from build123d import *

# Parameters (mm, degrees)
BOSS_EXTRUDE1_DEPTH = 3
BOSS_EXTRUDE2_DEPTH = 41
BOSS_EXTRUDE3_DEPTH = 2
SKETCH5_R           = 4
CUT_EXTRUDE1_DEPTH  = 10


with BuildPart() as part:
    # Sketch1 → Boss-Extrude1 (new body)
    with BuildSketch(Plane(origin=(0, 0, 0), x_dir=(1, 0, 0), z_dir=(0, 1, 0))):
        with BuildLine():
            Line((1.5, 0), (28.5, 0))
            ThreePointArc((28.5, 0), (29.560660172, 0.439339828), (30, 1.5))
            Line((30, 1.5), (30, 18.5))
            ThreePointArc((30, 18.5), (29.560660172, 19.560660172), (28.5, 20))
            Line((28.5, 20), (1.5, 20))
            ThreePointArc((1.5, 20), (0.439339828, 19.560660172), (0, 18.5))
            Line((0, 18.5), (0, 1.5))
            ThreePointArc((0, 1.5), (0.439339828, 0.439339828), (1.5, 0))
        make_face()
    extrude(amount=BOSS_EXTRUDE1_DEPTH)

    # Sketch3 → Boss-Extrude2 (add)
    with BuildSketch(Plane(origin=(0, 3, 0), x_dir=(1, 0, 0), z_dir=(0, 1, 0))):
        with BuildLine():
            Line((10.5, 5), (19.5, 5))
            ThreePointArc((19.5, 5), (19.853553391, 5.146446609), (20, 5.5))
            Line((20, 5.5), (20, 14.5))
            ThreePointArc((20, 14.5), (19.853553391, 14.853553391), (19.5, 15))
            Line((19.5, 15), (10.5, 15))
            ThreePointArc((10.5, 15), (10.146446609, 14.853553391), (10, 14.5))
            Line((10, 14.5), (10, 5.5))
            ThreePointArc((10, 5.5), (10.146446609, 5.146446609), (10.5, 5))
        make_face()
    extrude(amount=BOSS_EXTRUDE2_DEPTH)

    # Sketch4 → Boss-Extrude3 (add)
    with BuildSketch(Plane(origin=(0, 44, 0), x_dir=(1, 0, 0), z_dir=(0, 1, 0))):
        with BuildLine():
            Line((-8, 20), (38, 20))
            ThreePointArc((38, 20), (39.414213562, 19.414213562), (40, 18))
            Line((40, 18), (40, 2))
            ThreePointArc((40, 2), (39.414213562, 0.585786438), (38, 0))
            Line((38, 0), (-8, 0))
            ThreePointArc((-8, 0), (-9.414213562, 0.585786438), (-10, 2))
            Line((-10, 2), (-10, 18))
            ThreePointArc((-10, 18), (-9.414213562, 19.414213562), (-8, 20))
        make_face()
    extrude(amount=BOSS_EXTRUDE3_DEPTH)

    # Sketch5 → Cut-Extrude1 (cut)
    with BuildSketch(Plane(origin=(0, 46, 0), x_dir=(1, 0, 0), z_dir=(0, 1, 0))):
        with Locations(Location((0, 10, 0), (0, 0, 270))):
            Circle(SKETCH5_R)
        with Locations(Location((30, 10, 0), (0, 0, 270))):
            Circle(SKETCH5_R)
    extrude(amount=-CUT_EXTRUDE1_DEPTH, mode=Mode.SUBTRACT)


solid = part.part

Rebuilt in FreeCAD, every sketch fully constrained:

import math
import FreeCAD as App
import Part
import Sketcher

doc = App.newDocument("Part")
body = doc.addObject("PartDesign::Body", "Body")

# Sketch on XZ plane
sketch1 = body.newObject("Sketcher::SketchObject", "Sketch")
sketch1.AttachmentSupport = (doc.getObject("XZ_Plane"), [""])
sketch1.MapMode = "FlatFace"
sketch1.addGeometry(Part.LineSegment(App.Vector(1.5, 0, 0), App.Vector(28.5, 0, 0)), False)
sketch1.addGeometry(Part.ArcOfCircle(Part.Circle(App.Vector(28.5, -1.5, 0), App.Vector(0, 0, 1), 1.5), math.radians(0), math.radians(90)), False)
sketch1.addGeometry(Part.LineSegment(App.Vector(30, -1.5, 0), App.Vector(30, -18.5, 0)), False)
sketch1.addGeometry(Part.ArcOfCircle(Part.Circle(App.Vector(28.5, -18.5, 0), App.Vector(0, 0, 1), 1.5), math.radians(-90), math.radians(0)), False)
sketch1.addGeometry(Part.LineSegment(App.Vector(28.5, -20, 0), App.Vector(1.5, -20, 0)), False)
sketch1.addGeometry(Part.ArcOfCircle(Part.Circle(App.Vector(1.5, -18.5, 0), App.Vector(0, 0, 1), 1.5), math.radians(180), math.radians(270)), False)
sketch1.addGeometry(Part.LineSegment(App.Vector(0, -18.5, 0), App.Vector(0, -1.5, 0)), False)
sketch1.addGeometry(Part.ArcOfCircle(Part.Circle(App.Vector(1.5, -1.5, 0), App.Vector(0, 0, 1), 1.5), math.radians(90), math.radians(180)), False)
sketch1.addConstraint(Sketcher.Constraint("Tangent", 0, 2, 1, 2))
sketch1.addConstraint(Sketcher.Constraint("Tangent", 1, 1, 2, 1))
sketch1.addConstraint(Sketcher.Constraint("Tangent", 2, 2, 3, 2))
sketch1.addConstraint(Sketcher.Constraint("Tangent", 3, 1, 4, 1))
sketch1.addConstraint(Sketcher.Constraint("Tangent", 4, 2, 5, 2))
sketch1.addConstraint(Sketcher.Constraint("Tangent", 5, 1, 6, 1))
sketch1.addConstraint(Sketcher.Constraint("Tangent", 6, 2, 7, 2))
sketch1.addConstraint(Sketcher.Constraint("Tangent", 7, 1, 0, 1))
sketch1.addConstraint(Sketcher.Constraint("Horizontal", 0))
sketch1.addConstraint(Sketcher.Constraint("Vertical", 2))
sketch1.addConstraint(Sketcher.Constraint("Horizontal", 4))
sketch1.addConstraint(Sketcher.Constraint("Vertical", 6))
sketch1.addConstraint(Sketcher.Constraint("Equal", 1, 3))
sketch1.addConstraint(Sketcher.Constraint("Equal", 3, 5))
sketch1.addConstraint(Sketcher.Constraint("Equal", 5, 7))
sketch1.addConstraint(Sketcher.Constraint("PointOnObject", 0, 2, -1))
sketch1.addConstraint(Sketcher.Constraint("PointOnObject", 5, 1, -2))
sketch1.addConstraint(Sketcher.Constraint("Radius", 1, 1.5))
sketch1.addConstraint(Sketcher.Constraint("DistanceX", 0, 1, 0, 2, 27.0))
sketch1.addConstraint(Sketcher.Constraint("DistanceY", 2, 2, 2, 1, 17.0))
pad1 = body.newObject("PartDesign::Pad", "Pad")
pad1.Profile = sketch1
pad1.Length = 3
pad1.Reversed = True

# Sketch on XZ plane
sketch2 = body.newObject("Sketcher::SketchObject", "Sketch001")
sketch2.AttachmentSupport = (doc.getObject("XZ_Plane"), [""])
sketch2.MapMode = "FlatFace"
sketch2.AttachmentOffset = App.Placement(App.Vector(0, 0, -3), App.Rotation())
sketch2.addGeometry(Part.LineSegment(App.Vector(10.5, -5, 0), App.Vector(19.5, -5, 0)), False)
sketch2.addGeometry(Part.ArcOfCircle(Part.Circle(App.Vector(19.5, -5.5, 0), App.Vector(0, 0, 1), 0.5), math.radians(0), math.radians(90)), False)
sketch2.addGeometry(Part.LineSegment(App.Vector(20, -5.5, 0), App.Vector(20, -14.5, 0)), False)
sketch2.addGeometry(Part.ArcOfCircle(Part.Circle(App.Vector(19.5, -14.5, 0), App.Vector(0, 0, 1), 0.5), math.radians(-90), math.radians(0)), False)
sketch2.addGeometry(Part.LineSegment(App.Vector(19.5, -15, 0), App.Vector(10.5, -15, 0)), False)
sketch2.addGeometry(Part.ArcOfCircle(Part.Circle(App.Vector(10.5, -14.5, 0), App.Vector(0, 0, 1), 0.5), math.radians(180), math.radians(270)), False)
sketch2.addGeometry(Part.LineSegment(App.Vector(10, -14.5, 0), App.Vector(10, -5.5, 0)), False)
sketch2.addGeometry(Part.ArcOfCircle(Part.Circle(App.Vector(10.5, -5.5, 0), App.Vector(0, 0, 1), 0.5), math.radians(90), math.radians(180)), False)
sketch2.addConstraint(Sketcher.Constraint("Tangent", 0, 2, 1, 2))
sketch2.addConstraint(Sketcher.Constraint("Tangent", 1, 1, 2, 1))
sketch2.addConstraint(Sketcher.Constraint("Tangent", 2, 2, 3, 2))
sketch2.addConstraint(Sketcher.Constraint("Tangent", 3, 1, 4, 1))
sketch2.addConstraint(Sketcher.Constraint("Tangent", 4, 2, 5, 2))
sketch2.addConstraint(Sketcher.Constraint("Tangent", 5, 1, 6, 1))
sketch2.addConstraint(Sketcher.Constraint("Tangent", 6, 2, 7, 2))
sketch2.addConstraint(Sketcher.Constraint("Tangent", 7, 1, 0, 1))
sketch2.addConstraint(Sketcher.Constraint("Horizontal", 0))
sketch2.addConstraint(Sketcher.Constraint("Vertical", 2))
sketch2.addConstraint(Sketcher.Constraint("Horizontal", 4))
sketch2.addConstraint(Sketcher.Constraint("Vertical", 6))
sketch2.addConstraint(Sketcher.Constraint("Equal", 1, 3))
sketch2.addConstraint(Sketcher.Constraint("Equal", 3, 5))
sketch2.addConstraint(Sketcher.Constraint("Equal", 5, 7))
sketch2.addConstraint(Sketcher.Constraint("Equal", 4, 2))
sketch2.addConstraint(Sketcher.Constraint("Radius", 1, 0.5))
sketch2.addConstraint(Sketcher.Constraint("DistanceX", 0, 1, 0, 2, 9.0))
sketch2.addConstraint(Sketcher.Constraint("DistanceY", 0, 2, -1, 1, 5.0))
sketch2.addConstraint(Sketcher.Constraint("DistanceX", -1, 1, 1, 1, 20.0))
pad2 = body.newObject("PartDesign::Pad", "Pad001")
pad2.Profile = sketch2
pad2.Length = 41
pad2.Reversed = True

# Sketch on XZ plane
sketch3 = body.newObject("Sketcher::SketchObject", "Sketch002")
sketch3.AttachmentSupport = (doc.getObject("XZ_Plane"), [""])
sketch3.MapMode = "FlatFace"
sketch3.AttachmentOffset = App.Placement(App.Vector(0, 0, -44), App.Rotation())
sketch3.addGeometry(Part.LineSegment(App.Vector(38, -20, 0), App.Vector(-8, -20, 0)), False)
sketch3.addGeometry(Part.ArcOfCircle(Part.Circle(App.Vector(-8, -18, 0), App.Vector(0, 0, 1), 2), math.radians(-180), math.radians(-90)), False)
sketch3.addGeometry(Part.LineSegment(App.Vector(-10, -18, 0), App.Vector(-10, -2, 0)), False)
sketch3.addGeometry(Part.ArcOfCircle(Part.Circle(App.Vector(-8, -2, 0), App.Vector(0, 0, 1), 2), math.radians(90), math.radians(180)), False)
sketch3.addGeometry(Part.LineSegment(App.Vector(-8, 0, 0), App.Vector(38, 0, 0)), False)
sketch3.addGeometry(Part.ArcOfCircle(Part.Circle(App.Vector(38, -2, 0), App.Vector(0, 0, 1), 2), math.radians(0), math.radians(90)), False)
sketch3.addGeometry(Part.LineSegment(App.Vector(40, -2, 0), App.Vector(40, -18, 0)), False)
sketch3.addGeometry(Part.ArcOfCircle(Part.Circle(App.Vector(38, -18, 0), App.Vector(0, 0, 1), 2), math.radians(-90), math.radians(0)), False)
sketch3.addConstraint(Sketcher.Constraint("Tangent", 0, 2, 1, 2))
sketch3.addConstraint(Sketcher.Constraint("Tangent", 1, 1, 2, 1))
sketch3.addConstraint(Sketcher.Constraint("Tangent", 2, 2, 3, 2))
sketch3.addConstraint(Sketcher.Constraint("Tangent", 3, 1, 4, 1))
sketch3.addConstraint(Sketcher.Constraint("Tangent", 4, 2, 5, 2))
sketch3.addConstraint(Sketcher.Constraint("Tangent", 5, 1, 6, 1))
sketch3.addConstraint(Sketcher.Constraint("Tangent", 6, 2, 7, 2))
sketch3.addConstraint(Sketcher.Constraint("Tangent", 7, 1, 0, 1))
sketch3.addConstraint(Sketcher.Constraint("Horizontal", 0))
sketch3.addConstraint(Sketcher.Constraint("Vertical", 2))
sketch3.addConstraint(Sketcher.Constraint("Horizontal", 4))
sketch3.addConstraint(Sketcher.Constraint("Vertical", 6))
sketch3.addConstraint(Sketcher.Constraint("Equal", 1, 3))
sketch3.addConstraint(Sketcher.Constraint("Equal", 3, 5))
sketch3.addConstraint(Sketcher.Constraint("Equal", 5, 7))
sketch3.addConstraint(Sketcher.Constraint("PointOnObject", 3, 1, -1))
sketch3.addConstraint(Sketcher.Constraint("Radius", 1, 2.0))
sketch3.addConstraint(Sketcher.Constraint("DistanceX", 0, 2, 0, 1, 46.0))
sketch3.addConstraint(Sketcher.Constraint("DistanceY", 2, 1, 2, 2, 16.0))
sketch3.addConstraint(Sketcher.Constraint("DistanceX", 1, 3, -1, 1, 8.0))
pad3 = body.newObject("PartDesign::Pad", "Pad002")
pad3.Profile = sketch3
pad3.Length = 2
pad3.Reversed = True

# Sketch on XZ plane
sketch4 = body.newObject("Sketcher::SketchObject", "Sketch003")
sketch4.AttachmentSupport = (doc.getObject("XZ_Plane"), [""])
sketch4.MapMode = "FlatFace"
sketch4.AttachmentOffset = App.Placement(App.Vector(0, 0, -46), App.Rotation())
sketch4.addGeometry(Part.Circle(App.Vector(0, -10, 0), App.Vector(0, 0, 1), 4), False)
sketch4.addGeometry(Part.Circle(App.Vector(30, -10, 0), App.Vector(0, 0, 1), 4), False)
sketch4.addConstraint(Sketcher.Constraint("Equal", 0, 1))
sketch4.addConstraint(Sketcher.Constraint("PointOnObject", 0, 3, -2))
sketch4.addConstraint(Sketcher.Constraint("Horizontal", 0, 3, 1, 3))
sketch4.addConstraint(Sketcher.Constraint("Diameter", 0, 8.0))
sketch4.addConstraint(Sketcher.Constraint("DistanceY", 0, 3, -1, 1, 10.0))
sketch4.addConstraint(Sketcher.Constraint("DistanceX", -1, 1, 1, 3, 30.0))
pocket1 = body.newObject("PartDesign::Pocket", "Pocket")
pocket1.Profile = sketch4
pocket1.Length = 10
pocket1.Reversed = True

doc.recompute()
